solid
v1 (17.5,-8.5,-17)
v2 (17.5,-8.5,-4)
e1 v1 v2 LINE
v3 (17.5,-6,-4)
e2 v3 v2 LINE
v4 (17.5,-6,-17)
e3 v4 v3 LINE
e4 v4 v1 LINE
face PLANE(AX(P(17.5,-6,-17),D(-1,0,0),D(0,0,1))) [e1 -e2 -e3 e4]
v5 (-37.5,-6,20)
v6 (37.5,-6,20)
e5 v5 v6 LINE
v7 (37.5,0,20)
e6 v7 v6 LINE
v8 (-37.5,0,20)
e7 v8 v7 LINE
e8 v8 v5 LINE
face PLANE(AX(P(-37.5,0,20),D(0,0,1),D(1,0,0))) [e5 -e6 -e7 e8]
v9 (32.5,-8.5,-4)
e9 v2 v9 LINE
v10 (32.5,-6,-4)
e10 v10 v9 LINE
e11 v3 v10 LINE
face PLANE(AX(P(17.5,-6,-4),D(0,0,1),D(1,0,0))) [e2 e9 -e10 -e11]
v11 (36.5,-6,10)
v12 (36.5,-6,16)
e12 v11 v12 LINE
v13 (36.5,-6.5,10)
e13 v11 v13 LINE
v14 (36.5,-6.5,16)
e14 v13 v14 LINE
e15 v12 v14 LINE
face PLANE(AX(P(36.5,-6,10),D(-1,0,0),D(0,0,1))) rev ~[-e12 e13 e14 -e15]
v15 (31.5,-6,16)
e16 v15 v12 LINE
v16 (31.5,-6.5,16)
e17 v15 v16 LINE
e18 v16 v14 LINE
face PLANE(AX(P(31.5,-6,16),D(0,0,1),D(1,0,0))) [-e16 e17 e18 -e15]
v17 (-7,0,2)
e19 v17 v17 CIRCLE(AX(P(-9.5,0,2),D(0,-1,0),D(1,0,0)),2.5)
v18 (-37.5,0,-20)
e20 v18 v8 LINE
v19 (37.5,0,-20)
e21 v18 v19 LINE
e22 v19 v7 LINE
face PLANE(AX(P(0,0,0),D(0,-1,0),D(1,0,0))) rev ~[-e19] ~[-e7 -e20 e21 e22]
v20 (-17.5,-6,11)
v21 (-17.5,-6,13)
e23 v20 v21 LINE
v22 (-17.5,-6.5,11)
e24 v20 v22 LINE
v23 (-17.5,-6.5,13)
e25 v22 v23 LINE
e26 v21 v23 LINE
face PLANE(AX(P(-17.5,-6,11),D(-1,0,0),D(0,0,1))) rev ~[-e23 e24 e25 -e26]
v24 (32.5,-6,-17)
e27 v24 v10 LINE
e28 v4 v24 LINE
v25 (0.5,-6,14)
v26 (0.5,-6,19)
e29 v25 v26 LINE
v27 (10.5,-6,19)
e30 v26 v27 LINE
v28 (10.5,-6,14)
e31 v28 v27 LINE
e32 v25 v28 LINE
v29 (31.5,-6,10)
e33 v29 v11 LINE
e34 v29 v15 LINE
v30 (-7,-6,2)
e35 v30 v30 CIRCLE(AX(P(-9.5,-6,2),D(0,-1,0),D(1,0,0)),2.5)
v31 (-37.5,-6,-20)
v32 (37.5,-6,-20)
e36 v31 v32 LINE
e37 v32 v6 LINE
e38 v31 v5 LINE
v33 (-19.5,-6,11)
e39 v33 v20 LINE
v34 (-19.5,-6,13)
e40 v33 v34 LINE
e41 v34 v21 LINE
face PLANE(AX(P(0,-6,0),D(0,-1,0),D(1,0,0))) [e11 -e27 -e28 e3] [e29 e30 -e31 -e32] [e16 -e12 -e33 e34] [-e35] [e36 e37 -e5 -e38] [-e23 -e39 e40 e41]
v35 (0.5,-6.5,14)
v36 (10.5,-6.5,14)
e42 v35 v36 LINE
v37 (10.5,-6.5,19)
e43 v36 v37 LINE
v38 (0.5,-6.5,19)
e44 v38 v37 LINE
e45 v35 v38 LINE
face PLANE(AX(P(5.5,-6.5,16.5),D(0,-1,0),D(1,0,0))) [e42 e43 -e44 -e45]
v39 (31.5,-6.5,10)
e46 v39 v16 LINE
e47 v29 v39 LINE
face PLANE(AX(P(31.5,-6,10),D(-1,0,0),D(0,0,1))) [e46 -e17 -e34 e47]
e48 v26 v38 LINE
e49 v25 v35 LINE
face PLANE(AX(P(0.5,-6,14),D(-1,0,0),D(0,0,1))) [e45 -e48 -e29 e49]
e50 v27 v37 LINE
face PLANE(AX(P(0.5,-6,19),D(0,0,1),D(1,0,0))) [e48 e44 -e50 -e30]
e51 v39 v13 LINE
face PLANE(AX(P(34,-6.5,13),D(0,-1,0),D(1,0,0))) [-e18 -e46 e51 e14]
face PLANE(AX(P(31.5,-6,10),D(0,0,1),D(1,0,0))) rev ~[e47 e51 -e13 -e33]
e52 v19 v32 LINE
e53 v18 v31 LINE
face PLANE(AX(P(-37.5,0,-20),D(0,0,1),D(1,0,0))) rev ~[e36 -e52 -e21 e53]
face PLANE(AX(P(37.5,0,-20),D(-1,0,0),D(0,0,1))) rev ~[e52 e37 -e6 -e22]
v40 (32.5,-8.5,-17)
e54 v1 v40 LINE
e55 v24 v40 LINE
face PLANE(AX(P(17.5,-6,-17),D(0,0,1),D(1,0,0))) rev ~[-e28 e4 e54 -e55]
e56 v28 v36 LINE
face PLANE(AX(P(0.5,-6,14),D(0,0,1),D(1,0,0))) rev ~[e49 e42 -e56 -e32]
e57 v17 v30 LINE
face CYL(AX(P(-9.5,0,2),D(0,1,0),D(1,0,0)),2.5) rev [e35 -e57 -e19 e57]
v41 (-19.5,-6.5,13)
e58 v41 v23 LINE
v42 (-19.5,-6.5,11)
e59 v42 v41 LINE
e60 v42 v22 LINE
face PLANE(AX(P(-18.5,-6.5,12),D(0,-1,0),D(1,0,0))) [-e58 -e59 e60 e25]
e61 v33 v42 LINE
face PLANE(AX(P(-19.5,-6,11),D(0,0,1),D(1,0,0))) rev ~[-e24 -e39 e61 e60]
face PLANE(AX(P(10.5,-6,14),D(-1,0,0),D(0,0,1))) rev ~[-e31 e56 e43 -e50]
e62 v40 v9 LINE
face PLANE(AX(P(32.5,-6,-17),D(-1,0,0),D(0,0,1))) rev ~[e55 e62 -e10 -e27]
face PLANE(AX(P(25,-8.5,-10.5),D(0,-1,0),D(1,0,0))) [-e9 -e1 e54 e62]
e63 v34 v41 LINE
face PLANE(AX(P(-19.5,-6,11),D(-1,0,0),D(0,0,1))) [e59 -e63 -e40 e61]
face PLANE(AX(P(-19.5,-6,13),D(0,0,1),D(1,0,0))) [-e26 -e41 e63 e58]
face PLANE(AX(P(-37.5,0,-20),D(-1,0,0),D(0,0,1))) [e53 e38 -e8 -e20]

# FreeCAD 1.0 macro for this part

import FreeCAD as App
import Part
import Sketcher

V = App.Vector
Q = App.Units.Quantity

doc = App.newDocument("Part")
body = doc.addObject("PartDesign::Body", "Body")

# Sketch on XZ plane
sketch1 = body.newObject("Sketcher::SketchObject", "Sketch")
sketch1.AttachmentSupport = (doc.getObject("XZ_Plane"), [""])
sketch1.MapMode = "FlatFace"
sketch1.addGeometry(Part.LineSegment(V(-37.5, 20, 0), V(-37.5, -20, 0)), False)
sketch1.addGeometry(Part.LineSegment(V(-37.5, -20, 0), V(37.5, -20, 0)), False)
sketch1.addGeometry(Part.LineSegment(V(37.5, -20, 0), V(37.5, 20, 0)), False)
sketch1.addGeometry(Part.LineSegment(V(37.5, 20, 0), V(-37.5, 20, 0)), False)
sketch1.addGeometry(Part.Circle(V(-9.5, 2, 0), V(0, 0, 1), 2.5), False)
sketch1.addConstraint(Sketcher.Constraint("Coincident", 0, 2, 1, 1))
sketch1.addConstraint(Sketcher.Constraint("Coincident", 1, 2, 2, 1))
sketch1.addConstraint(Sketcher.Constraint("Coincident", 2, 2, 3, 1))
sketch1.addConstraint(Sketcher.Constraint("Coincident", 3, 2, 0, 1))
sketch1.addConstraint(Sketcher.Constraint("Vertical", 0))
sketch1.addConstraint(Sketcher.Constraint("Horizontal", 1))
sketch1.addConstraint(Sketcher.Constraint("Vertical", 2))
sketch1.addConstraint(Sketcher.Constraint("Horizontal", 3))
sketch1.addConstraint(Sketcher.Constraint("Symmetric", 0, 2, 2, 2, -1, 1))
sketch1.addConstraint(Sketcher.Constraint("Diameter", 4, Q("5 mm")))
sketch1.addConstraint(Sketcher.Constraint("DistanceX", 1, 1, 1, 2, Q("75 mm")))
sketch1.addConstraint(Sketcher.Constraint("DistanceY", 0, 2, 0, 1, Q("40 mm")))
sketch1.addConstraint(Sketcher.Constraint("DistanceY", -1, 1, 4, 3, Q("2 mm")))
sketch1.addConstraint(Sketcher.Constraint("DistanceX", 0, 2, 4, 3, Q("28 mm")))
pad1 = body.newObject("PartDesign::Pad", "Pad")
pad1.Profile = sketch1
pad1.Length = 6

# Sketch on XZ plane
sketch2 = body.newObject("Sketcher::SketchObject", "Sketch001")
sketch2.AttachmentSupport = (doc.getObject("XZ_Plane"), [""])
sketch2.MapMode = "FlatFace"
sketch2.AttachmentOffset = App.Placement(V(0, 0, 6), App.Rotation())
sketch2.addGeometry(Part.LineSegment(V(0.5, 19, 0), V(0.5, 14, 0)), False)
sketch2.addGeometry(Part.LineSegment(V(0.5, 14, 0), V(10.5, 14, 0)), False)
sketch2.addGeometry(Part.LineSegment(V(10.5, 14, 0), V(10.5, 19, 0)), False)
sketch2.addGeometry(Part.LineSegment(V(10.5, 19, 0), V(0.5, 19, 0)), False)
sketch2.addGeometry(Part.LineSegment(V(31.5, 16, 0), V(31.5, 10, 0)), False)
sketch2.addGeometry(Part.LineSegment(V(31.5, 10, 0), V(36.5, 10, 0)), False)
sketch2.addGeometry(Part.LineSegment(V(36.5, 10, 0), V(36.5, 16, 0)), False)
sketch2.addGeometry(Part.LineSegment(V(36.5, 16, 0), V(31.5, 16, 0)), False)
sketch2.addGeometry(Part.LineSegment(V(-19.5, 13, 0), V(-19.5, 11, 0)), False)
sketch2.addGeometry(Part.LineSegment(V(-19.5, 11, 0), V(-17.5, 11, 0)), False)
sketch2.addGeometry(Part.LineSegment(V(-17.5, 11, 0), V(-17.5, 13, 0)), False)
sketch2.addGeometry(Part.LineSegment(V(-17.5, 13, 0), V(-19.5, 13, 0)), False)
sketch2.addConstraint(Sketcher.Constraint("Coincident", 0, 2, 1, 1))
sketch2.addConstraint(Sketcher.Constraint("Coincident", 1, 2, 2, 1))
sketch2.addConstraint(Sketcher.Constraint("Coincident", 2, 2, 3, 1))
sketch2.addConstraint(Sketcher.Constraint("Coincident", 3, 2, 0, 1))
sketch2.addConstraint(Sketcher.Constraint("Coincident", 4, 2, 5, 1))
sketch2.addConstraint(Sketcher.Constraint("Coincident", 5, 2, 6, 1))
sketch2.addConstraint(Sketcher.Constraint("Coincident", 6, 2, 7, 1))
sketch2.addConstraint(Sketcher.Constraint("Coincident", 7, 2, 4, 1))
sketch2.addConstraint(Sketcher.Constraint("Coincident", 8, 2, 9, 1))
sketch2.addConstraint(Sketcher.Constraint("Coincident", 9, 2, 10, 1))
sketch2.addConstraint(Sketcher.Constraint("Coincident", 10, 2, 11, 1))
sketch2.addConstraint(Sketcher.Constraint("Coincident", 11, 2, 8, 1))
sketch2.addConstraint(Sketcher.Constraint("Vertical", 0))
sketch2.addConstraint(Sketcher.Constraint("Horizontal", 1))
sketch2.addConstraint(Sketcher.Constraint("Vertical", 2))
sketch2.addConstraint(Sketcher.Constraint("Horizontal", 3))
sketch2.addConstraint(Sketcher.Constraint("Vertical", 4))
sketch2.addConstraint(Sketcher.Constraint("Horizontal", 5))
sketch2.addConstraint(Sketcher.Constraint("Vertical", 6))
sketch2.addConstraint(Sketcher.Constraint("Horizontal", 7))
sketch2.addConstraint(Sketcher.Constraint("Vertical", 8))
sketch2.addConstraint(Sketcher.Constraint("Horizontal", 9))
sketch2.addConstraint(Sketcher.Constraint("Vertical", 10))
sketch2.addConstraint(Sketcher.Constraint("Horizontal", 11))
sketch2.addConstraint(Sketcher.Constraint("Equal", 7, 0))
sketch2.addConstraint(Sketcher.Constraint("Equal", 11, 8))
sketch2.addConstraint(Sketcher.Constraint("DistanceX", 1, 1, 1, 2, Q("10 mm")))
sketch2.addConstraint(Sketcher.Constraint("DistanceX", 5, 1, 5, 2, Q("5 mm")))
sketch2.addConstraint(Sketcher.Constraint("DistanceX", 9, 1, 9, 2, Q("2 mm")))
sketch2.addConstraint(Sketcher.Constraint("DistanceY", 4, 2, 4, 1, Q("6 mm")))
sketch2.addConstraint(Sketcher.Constraint("DistanceY", -1, 1, 0, 2, Q("14 mm")))
sketch2.addConstraint(Sketcher.Constraint("DistanceY", -1, 1, 4, 2, Q("10 mm")))
sketch2.addConstraint(Sketcher.Constraint("DistanceY", -1, 1, 8, 2, Q("11 mm")))
sketch2.addConstraint(Sketcher.Constraint("DistanceX", 1, 2, 4, 2, Q("21 mm")))
sketch2.addConstraint(Sketcher.Constraint("DistanceX", 8, 2, 0, 2, Q("20 mm")))
sketch2.addConstraint(Sketcher.Constraint("DistanceX", -1, 1, 0, 2, Q("0.5 mm")))
pad2 = body.newObject("PartDesign::Pad", "Pad001")
pad2.Profile = sketch2
pad2.Length = 0.5

# Sketch on XZ plane
sketch3 = body.newObject("Sketcher::SketchObject", "Sketch002")
sketch3.AttachmentSupport = (doc.getObject("XZ_Plane"), [""])
sketch3.MapMode = "FlatFace"
sketch3.AttachmentOffset = App.Placement(V(0, 0, 6), App.Rotation())
sketch3.addGeometry(Part.LineSegment(V(17.5, -4, 0), V(17.5, -17, 0)), False)
sketch3.addGeometry(Part.LineSegment(V(17.5, -17, 0), V(32.5, -17, 0)), False)
sketch3.addGeometry(Part.LineSegment(V(32.5, -17, 0), V(32.5, -4, 0)), False)
sketch3.addGeometry(Part.LineSegment(V(32.5, -4, 0), V(17.5, -4, 0)), False)
sketch3.addConstraint(Sketcher.Constraint("Coincident", 0, 2, 1, 1))
sketch3.addConstraint(Sketcher.Constraint("Coincident", 1, 2, 2, 1))
sketch3.addConstraint(Sketcher.Constraint("Coincident", 2, 2, 3, 1))
sketch3.addConstraint(Sketcher.Constraint("Coincident", 3, 2, 0, 1))
sketch3.addConstraint(Sketcher.Constraint("Vertical", 0))
sketch3.addConstraint(Sketcher.Constraint("Horizontal", 1))
sketch3.addConstraint(Sketcher.Constraint("Vertical", 2))
sketch3.addConstraint(Sketcher.Constraint("Horizontal", 3))
sketch3.addConstraint(Sketcher.Constraint("DistanceX", 1, 1, 1, 2, Q("15 mm")))
sketch3.addConstraint(Sketcher.Constraint("DistanceY", 0, 2, 0, 1, Q("13 mm")))
sketch3.addConstraint(Sketcher.Constraint("DistanceY", 0, 2, -1, 1, Q("17 mm")))
sketch3.addConstraint(Sketcher.Constraint("DistanceX", -1, 1, 0, 2, Q("17.5 mm")))
pad3 = body.newObject("PartDesign::Pad", "Pad002")
pad3.Profile = sketch3
pad3.Length = 2.5

doc.recompute()
